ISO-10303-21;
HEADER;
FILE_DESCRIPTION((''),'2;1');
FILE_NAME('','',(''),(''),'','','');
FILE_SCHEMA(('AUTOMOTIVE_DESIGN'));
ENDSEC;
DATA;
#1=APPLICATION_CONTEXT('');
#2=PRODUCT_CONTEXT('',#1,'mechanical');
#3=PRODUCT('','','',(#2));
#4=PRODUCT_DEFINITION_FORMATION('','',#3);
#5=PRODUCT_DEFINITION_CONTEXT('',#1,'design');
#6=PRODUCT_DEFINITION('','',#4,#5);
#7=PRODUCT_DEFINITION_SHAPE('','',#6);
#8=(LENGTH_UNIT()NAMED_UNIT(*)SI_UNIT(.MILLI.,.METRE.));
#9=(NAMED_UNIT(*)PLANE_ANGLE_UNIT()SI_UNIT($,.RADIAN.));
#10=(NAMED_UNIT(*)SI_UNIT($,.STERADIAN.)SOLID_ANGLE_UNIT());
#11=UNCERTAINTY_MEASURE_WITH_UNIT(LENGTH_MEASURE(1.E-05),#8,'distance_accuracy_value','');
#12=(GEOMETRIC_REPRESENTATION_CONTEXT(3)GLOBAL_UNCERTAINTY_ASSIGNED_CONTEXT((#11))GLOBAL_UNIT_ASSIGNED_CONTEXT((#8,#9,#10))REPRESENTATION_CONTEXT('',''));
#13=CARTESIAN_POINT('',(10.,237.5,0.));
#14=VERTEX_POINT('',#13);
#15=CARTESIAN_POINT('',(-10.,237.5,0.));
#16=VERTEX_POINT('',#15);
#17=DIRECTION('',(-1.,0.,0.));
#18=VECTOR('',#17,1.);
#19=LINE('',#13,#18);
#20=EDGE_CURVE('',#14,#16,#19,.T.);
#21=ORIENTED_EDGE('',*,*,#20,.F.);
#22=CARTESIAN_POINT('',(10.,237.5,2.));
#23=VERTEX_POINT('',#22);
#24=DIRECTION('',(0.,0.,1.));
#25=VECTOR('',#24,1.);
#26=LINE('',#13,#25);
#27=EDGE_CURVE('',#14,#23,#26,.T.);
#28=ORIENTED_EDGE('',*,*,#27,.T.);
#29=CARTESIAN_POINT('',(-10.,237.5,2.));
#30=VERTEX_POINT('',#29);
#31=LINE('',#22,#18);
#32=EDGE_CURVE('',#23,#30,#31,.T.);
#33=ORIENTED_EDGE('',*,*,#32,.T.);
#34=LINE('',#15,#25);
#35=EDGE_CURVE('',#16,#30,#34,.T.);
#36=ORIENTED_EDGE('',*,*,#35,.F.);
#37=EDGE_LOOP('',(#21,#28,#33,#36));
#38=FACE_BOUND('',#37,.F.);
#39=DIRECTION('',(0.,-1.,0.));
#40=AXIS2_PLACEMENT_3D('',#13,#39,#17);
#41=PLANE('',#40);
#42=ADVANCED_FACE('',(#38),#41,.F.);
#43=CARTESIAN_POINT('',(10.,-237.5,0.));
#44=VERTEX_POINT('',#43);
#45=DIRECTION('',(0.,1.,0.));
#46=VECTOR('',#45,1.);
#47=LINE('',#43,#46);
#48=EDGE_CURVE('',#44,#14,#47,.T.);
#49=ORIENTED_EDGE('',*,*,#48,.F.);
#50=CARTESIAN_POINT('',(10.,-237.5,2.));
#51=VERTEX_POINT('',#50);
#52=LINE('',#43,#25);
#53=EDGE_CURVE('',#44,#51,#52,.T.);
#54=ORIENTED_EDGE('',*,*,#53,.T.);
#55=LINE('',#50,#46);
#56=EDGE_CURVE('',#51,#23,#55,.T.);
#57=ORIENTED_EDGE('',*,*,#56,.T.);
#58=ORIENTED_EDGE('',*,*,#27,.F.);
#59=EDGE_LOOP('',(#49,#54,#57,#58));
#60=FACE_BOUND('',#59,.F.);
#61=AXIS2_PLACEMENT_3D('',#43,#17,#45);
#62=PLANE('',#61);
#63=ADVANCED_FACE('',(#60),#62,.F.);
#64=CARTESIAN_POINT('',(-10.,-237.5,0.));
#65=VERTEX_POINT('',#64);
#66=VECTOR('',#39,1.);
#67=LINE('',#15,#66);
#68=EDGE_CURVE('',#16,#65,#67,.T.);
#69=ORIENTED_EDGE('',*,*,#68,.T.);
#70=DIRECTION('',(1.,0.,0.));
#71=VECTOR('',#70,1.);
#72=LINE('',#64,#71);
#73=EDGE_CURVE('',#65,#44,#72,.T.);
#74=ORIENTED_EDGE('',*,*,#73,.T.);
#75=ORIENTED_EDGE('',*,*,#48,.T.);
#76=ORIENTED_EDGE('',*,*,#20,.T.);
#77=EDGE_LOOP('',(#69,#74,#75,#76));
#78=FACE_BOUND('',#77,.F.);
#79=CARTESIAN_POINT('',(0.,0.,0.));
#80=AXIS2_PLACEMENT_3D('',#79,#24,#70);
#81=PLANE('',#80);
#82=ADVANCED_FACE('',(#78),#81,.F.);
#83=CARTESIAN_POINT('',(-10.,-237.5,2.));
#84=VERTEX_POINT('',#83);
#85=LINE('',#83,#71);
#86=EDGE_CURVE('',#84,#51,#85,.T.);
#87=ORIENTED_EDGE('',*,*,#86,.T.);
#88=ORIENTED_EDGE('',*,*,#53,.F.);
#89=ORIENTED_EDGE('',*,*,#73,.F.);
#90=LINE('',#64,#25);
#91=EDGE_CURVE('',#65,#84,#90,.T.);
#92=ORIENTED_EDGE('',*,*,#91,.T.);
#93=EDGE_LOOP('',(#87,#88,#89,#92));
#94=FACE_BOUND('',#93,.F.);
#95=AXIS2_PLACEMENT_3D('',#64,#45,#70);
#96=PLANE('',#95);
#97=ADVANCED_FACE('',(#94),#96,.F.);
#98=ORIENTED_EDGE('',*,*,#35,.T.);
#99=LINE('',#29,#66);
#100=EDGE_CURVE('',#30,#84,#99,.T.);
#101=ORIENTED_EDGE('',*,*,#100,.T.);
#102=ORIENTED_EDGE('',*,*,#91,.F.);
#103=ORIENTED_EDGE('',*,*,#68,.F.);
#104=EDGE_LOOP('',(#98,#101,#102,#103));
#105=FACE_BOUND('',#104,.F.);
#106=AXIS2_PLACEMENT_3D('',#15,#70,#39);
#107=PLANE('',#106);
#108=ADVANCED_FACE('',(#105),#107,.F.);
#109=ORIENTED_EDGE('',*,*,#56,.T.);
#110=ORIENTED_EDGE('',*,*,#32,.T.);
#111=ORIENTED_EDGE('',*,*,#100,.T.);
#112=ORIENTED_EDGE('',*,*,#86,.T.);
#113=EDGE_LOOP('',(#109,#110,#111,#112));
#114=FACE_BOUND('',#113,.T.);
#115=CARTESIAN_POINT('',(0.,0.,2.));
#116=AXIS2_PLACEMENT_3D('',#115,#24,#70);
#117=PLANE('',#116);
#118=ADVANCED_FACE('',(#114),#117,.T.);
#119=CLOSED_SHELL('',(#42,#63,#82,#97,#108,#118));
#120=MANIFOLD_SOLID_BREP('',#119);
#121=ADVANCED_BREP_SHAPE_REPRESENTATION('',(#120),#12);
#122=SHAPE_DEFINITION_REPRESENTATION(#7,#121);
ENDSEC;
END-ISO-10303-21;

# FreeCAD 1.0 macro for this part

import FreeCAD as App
import Part
import Sketcher


def add_polygon(sketch, points):
    """Adds a closed chain of lines whose ends are joined by coincident constraints."""
    first, n = sketch.GeometryCount, len(points)
    for a, b in zip(points, points[1:] + points[:1]):
        sketch.addGeometry(Part.LineSegment(App.Vector(*a, 0), App.Vector(*b, 0)), False)
    for i in range(n):
        sketch.addConstraint(Sketcher.Constraint("Coincident", first + i, 2, first + (i + 1) % n, 1))

doc = App.newDocument("Part")
body = doc.addObject("PartDesign::Body", "Body")

sketch1 = body.newObject("Sketcher::SketchObject", "Sketch")
sketch1.AttachmentSupport = (doc.getObject("XY_Plane"), [""])
sketch1.MapMode = "FlatFace"
add_polygon(sketch1, [(-10, 238), (-10, -238), (10, -238), (10, 238)])
sketch1.addConstraint([
    Sketcher.Constraint("Vertical", 0),
    Sketcher.Constraint("Horizontal", 1),
    Sketcher.Constraint("Vertical", 2),
    Sketcher.Constraint("Horizontal", 3),
    Sketcher.Constraint("Symmetric", 0, 2, 2, 2, -1, 1),
    Sketcher.Constraint("DistanceX", 1, 1, 1, 2, 20.0),
    Sketcher.Constraint("DistanceY", 0, 2, 0, 1, 475.0),
])
pad1 = body.newObject("PartDesign::Pad", "Pad")
pad1.Profile = sketch1
pad1.Length = 2

doc.recompute()
